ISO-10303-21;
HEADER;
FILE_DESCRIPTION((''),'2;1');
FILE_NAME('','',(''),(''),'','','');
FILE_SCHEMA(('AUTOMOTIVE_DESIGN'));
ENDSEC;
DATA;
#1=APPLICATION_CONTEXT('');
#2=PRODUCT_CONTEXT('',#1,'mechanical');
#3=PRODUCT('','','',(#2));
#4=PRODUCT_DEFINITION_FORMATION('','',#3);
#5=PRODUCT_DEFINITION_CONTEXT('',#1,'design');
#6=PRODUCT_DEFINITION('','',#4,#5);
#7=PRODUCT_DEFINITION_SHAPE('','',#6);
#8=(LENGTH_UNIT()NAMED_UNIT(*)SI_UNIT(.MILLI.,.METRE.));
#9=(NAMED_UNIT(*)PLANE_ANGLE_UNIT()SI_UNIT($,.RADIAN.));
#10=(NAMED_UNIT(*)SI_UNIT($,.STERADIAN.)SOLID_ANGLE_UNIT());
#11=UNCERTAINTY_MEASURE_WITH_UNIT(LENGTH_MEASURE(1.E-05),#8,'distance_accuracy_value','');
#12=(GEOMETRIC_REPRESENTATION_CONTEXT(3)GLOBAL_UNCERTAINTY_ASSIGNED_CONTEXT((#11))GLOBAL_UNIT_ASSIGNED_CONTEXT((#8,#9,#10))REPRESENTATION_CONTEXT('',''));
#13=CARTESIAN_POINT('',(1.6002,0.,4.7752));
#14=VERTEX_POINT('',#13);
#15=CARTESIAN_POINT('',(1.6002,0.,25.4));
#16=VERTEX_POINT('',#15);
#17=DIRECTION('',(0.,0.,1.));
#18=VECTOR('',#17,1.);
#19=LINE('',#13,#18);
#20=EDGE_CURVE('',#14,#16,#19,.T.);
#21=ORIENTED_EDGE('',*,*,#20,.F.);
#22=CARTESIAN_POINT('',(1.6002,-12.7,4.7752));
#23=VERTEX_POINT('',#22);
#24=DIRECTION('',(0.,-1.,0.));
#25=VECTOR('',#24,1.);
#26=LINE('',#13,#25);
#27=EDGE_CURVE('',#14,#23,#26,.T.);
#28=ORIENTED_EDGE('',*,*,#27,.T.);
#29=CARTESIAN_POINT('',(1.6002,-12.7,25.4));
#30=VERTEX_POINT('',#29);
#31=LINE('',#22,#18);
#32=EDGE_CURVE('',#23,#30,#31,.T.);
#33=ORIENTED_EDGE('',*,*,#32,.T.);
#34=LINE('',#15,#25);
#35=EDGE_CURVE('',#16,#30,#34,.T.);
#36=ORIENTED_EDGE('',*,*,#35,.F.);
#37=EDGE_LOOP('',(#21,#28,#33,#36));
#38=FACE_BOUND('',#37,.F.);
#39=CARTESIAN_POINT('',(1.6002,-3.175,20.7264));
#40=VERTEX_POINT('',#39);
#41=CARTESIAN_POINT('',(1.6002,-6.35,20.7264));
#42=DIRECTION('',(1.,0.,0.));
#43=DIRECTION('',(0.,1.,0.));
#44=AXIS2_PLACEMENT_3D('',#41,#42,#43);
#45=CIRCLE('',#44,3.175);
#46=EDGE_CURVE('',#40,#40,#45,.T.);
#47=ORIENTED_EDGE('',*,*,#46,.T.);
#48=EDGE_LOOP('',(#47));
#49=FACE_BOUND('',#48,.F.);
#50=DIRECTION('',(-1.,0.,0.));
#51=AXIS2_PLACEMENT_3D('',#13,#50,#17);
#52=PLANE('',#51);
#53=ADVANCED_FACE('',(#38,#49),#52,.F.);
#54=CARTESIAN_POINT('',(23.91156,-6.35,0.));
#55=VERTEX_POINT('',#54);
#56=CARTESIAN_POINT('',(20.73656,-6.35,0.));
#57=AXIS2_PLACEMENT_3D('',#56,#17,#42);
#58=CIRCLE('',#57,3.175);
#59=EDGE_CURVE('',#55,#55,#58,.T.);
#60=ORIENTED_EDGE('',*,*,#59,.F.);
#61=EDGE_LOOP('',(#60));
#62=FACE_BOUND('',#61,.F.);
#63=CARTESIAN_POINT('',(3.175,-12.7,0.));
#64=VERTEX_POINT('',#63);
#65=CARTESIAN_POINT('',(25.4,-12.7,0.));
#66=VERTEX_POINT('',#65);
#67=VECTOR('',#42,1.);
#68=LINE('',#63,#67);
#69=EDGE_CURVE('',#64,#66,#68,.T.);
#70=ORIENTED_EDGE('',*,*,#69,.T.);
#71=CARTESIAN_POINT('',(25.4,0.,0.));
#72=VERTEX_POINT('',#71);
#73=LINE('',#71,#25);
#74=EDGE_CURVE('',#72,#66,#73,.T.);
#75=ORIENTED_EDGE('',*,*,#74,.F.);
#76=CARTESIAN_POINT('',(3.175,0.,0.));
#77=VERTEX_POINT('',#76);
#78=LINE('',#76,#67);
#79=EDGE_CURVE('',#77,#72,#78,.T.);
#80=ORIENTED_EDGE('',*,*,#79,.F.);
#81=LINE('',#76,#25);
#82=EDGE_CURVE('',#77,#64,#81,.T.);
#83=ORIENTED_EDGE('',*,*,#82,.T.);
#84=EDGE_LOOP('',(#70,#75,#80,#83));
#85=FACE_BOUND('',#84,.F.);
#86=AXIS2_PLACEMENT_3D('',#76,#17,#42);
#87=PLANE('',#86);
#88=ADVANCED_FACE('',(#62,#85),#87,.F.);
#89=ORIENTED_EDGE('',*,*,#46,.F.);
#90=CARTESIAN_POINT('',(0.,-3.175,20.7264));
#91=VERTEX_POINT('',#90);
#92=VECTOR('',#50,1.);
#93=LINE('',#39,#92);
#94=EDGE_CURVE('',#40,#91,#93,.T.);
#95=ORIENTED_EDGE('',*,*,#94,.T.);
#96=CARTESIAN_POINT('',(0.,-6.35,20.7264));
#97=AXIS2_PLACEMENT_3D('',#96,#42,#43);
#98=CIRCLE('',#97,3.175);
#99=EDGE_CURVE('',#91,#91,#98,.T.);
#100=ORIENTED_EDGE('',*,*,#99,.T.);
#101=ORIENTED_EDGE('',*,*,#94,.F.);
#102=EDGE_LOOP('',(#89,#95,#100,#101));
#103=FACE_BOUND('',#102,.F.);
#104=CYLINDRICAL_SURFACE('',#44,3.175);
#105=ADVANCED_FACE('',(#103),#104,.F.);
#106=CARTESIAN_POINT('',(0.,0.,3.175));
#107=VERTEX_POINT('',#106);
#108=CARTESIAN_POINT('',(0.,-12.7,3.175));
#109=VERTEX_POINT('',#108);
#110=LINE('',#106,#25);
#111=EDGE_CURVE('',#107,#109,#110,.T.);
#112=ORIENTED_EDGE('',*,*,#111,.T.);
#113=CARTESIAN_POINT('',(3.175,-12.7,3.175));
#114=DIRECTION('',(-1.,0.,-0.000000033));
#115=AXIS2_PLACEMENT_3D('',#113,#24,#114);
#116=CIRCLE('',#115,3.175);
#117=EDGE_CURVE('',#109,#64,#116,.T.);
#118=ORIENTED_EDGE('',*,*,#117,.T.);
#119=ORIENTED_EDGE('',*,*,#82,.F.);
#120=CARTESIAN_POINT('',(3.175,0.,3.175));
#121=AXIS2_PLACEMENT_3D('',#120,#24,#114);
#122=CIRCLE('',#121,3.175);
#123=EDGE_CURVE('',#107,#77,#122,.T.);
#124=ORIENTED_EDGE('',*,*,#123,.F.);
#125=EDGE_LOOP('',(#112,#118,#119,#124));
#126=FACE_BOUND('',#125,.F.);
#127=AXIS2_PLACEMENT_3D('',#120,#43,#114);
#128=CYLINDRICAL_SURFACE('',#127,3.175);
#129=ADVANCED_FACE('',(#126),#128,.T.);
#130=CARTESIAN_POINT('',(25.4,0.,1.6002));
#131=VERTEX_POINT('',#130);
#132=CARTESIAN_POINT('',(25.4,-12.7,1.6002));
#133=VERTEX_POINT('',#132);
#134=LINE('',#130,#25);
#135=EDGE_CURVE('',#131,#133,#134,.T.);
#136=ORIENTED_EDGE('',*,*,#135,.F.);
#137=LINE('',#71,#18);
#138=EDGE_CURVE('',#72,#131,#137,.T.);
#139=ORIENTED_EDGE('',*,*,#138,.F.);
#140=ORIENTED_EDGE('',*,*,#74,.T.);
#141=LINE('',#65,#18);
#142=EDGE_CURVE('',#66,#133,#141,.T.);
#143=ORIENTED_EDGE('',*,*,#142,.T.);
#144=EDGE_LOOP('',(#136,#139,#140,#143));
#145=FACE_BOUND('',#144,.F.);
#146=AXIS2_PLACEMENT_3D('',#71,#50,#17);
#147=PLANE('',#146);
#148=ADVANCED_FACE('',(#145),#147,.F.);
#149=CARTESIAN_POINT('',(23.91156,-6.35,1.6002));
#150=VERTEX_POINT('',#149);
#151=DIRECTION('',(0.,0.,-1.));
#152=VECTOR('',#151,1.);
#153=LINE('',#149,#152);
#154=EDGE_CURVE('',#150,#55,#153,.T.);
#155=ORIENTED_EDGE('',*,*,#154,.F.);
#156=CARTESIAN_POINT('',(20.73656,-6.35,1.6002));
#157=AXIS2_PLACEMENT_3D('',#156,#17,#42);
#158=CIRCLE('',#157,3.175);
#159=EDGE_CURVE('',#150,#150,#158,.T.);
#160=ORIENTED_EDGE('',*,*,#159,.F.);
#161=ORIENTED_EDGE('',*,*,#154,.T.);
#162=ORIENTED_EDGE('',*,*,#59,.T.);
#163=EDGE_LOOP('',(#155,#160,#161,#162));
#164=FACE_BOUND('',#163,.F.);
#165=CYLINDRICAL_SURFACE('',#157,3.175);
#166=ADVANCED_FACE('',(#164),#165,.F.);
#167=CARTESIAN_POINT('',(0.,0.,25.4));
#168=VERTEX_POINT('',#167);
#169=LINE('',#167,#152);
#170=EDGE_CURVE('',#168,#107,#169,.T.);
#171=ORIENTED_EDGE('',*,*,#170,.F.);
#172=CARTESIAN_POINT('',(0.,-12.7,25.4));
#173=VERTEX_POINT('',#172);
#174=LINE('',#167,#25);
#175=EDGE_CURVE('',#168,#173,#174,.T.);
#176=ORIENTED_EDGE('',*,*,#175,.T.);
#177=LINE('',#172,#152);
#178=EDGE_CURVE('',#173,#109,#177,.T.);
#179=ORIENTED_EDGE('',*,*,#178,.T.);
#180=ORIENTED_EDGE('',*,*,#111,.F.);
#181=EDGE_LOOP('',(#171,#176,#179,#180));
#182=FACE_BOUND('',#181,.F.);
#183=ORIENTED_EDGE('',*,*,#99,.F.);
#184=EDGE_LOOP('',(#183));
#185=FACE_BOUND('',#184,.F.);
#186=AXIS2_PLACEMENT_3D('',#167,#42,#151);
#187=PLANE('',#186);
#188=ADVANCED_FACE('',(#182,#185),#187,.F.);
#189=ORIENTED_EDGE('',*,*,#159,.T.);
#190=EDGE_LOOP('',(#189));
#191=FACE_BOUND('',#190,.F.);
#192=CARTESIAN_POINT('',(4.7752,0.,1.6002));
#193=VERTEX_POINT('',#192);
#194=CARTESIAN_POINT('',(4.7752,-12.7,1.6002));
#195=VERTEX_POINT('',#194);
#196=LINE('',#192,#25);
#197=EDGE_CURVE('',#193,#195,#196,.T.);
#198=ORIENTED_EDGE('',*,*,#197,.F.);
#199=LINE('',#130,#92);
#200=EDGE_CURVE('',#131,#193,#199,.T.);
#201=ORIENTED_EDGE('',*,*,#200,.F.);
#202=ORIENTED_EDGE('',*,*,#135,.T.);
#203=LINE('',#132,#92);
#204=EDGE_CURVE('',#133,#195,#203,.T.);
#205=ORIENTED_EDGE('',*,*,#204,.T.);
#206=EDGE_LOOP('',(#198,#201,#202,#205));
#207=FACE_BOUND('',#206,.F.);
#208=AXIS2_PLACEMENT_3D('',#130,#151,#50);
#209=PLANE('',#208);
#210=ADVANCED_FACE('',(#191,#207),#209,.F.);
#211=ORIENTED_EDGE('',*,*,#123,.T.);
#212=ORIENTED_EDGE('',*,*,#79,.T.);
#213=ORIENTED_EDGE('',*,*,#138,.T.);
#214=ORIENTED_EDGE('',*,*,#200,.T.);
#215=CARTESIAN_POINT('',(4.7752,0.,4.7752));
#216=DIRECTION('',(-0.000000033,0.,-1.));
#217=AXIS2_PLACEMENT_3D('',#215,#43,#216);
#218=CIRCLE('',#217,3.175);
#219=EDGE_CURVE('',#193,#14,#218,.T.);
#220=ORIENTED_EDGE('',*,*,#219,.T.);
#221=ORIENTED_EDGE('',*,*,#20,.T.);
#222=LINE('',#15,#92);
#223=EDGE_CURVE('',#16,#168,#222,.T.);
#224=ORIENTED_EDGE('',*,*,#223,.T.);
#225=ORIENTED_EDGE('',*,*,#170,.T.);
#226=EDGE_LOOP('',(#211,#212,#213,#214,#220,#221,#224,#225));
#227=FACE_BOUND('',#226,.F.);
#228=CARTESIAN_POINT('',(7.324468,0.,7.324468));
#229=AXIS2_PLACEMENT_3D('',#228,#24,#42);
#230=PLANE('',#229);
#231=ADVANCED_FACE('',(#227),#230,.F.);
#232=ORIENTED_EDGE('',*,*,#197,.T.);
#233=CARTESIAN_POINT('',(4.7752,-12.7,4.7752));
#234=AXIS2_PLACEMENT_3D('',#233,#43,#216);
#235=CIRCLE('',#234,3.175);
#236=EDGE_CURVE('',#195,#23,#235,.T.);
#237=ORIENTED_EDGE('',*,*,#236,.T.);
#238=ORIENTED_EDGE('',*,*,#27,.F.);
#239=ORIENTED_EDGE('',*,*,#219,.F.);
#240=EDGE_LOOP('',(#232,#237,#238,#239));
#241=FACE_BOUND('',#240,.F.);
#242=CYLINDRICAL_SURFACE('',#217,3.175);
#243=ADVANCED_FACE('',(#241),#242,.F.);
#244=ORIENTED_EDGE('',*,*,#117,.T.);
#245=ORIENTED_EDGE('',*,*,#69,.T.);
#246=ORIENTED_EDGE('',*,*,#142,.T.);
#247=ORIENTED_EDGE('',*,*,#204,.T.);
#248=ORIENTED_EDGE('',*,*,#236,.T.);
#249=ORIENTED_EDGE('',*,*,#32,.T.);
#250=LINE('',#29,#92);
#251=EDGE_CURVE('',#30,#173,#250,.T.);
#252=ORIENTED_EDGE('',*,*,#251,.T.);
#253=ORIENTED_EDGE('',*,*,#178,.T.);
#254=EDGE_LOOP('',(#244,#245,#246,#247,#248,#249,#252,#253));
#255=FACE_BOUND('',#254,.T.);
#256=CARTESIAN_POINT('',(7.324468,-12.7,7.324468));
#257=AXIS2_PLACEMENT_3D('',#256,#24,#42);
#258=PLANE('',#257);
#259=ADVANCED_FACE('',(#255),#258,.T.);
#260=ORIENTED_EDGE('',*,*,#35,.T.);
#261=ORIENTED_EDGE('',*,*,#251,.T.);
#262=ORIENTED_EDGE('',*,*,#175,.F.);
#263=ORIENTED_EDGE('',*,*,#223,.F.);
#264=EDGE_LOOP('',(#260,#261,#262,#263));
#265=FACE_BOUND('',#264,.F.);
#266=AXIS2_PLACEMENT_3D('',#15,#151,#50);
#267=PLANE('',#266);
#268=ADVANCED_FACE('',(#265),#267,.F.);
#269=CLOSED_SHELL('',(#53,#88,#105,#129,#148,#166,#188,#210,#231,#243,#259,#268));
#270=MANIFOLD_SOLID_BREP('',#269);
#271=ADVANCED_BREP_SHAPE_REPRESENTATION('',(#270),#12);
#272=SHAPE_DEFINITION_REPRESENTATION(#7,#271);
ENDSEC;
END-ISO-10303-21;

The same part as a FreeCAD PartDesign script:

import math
import FreeCAD as App
import Part
import Sketcher
from FreeCAD import Vector
Q = App.Units.Quantity

doc = App.newDocument("Part")
params = doc.addObject("Spreadsheet::Sheet", "Params")
for row, (alias, value) in enumerate([
    ("sketch1_radius", "0.125 in"),
    ("sketch1_width", "0.812 in"),
    ("pad1_length", "0.5 in"),
    ("sketch2_diameter", "0.25 in"),
    ("pocket1_length", "1 in"),
    ("sketch3_diameter", "0.25 in"),
    ("pocket2_length", "1 in"),
], start=1):
    params.set(f"A{row}", alias)
    params.set(f"B{row}", "=" + value)
    params.setAlias(f"B{row}", alias)

body = doc.addObject("PartDesign::Body", "Body")

# Sketch on XZ plane
sketch1 = doc.addObject("Sketcher::SketchObject", "Sketch")
body.addObject(sketch1)
sketch1.AttachmentSupport = (doc.XZ_Plane, [""])
sketch1.MapMode = "FlatFace"
sketch1.addGeometry([
    Part.LineSegment(Vector(0, 25.4, 0), Vector(0, 3.2, 0)),  # 0
    Part.ArcOfCircle(Part.Circle(Vector(3.2, 3.2, 0), Vector(0, 0, 1), 3.2), math.radians(-180), math.radians(-90)),  # 1
    Part.LineSegment(Vector(3.2, 0, 0), Vector(25.4, 0, 0)),  # 2
    Part.LineSegment(Vector(25.4, 0, 0), Vector(25.4, 1.6, 0)),  # 3
    Part.LineSegment(Vector(25.4, 1.6, 0), Vector(4.8, 1.6, 0)),  # 4
    Part.ArcOfCircle(Part.Circle(Vector(4.8, 4.8, 0), Vector(0, 0, 1), 3.2), math.radians(-180), math.radians(-90)),  # 5
    Part.LineSegment(Vector(1.6, 4.8, 0), Vector(1.6, 25.4, 0)),  # 6
    Part.LineSegment(Vector(1.6, 25.4, 0), Vector(0, 25.4, 0)),  # 7
], False)
sketch1.addConstraint([
    Sketcher.Constraint("Tangent", 0, 2, 1, 1),
    Sketcher.Constraint("Tangent", 1, 2, 2, 1),
    Sketcher.Constraint("Coincident", 2, 2, 3, 1),
    Sketcher.Constraint("Coincident", 3, 2, 4, 1),
    Sketcher.Constraint("Tangent", 4, 2, 5, 2),
    Sketcher.Constraint("Tangent", 5, 1, 6, 1),
    Sketcher.Constraint("Coincident", 6, 2, 7, 1),
    Sketcher.Constraint("Coincident", 7, 2, 0, 1),
    Sketcher.Constraint("Vertical", 0),
    Sketcher.Constraint("Horizontal", 2),
    Sketcher.Constraint("Vertical", 3),
    Sketcher.Constraint("Horizontal", 4),
    Sketcher.Constraint("Vertical", 6),
    Sketcher.Constraint("Horizontal", 7),
    Sketcher.Constraint("Equal", 1, 5),
    Sketcher.Constraint("PointOnObject", 0, 2, -2),
    Sketcher.Constraint("PointOnObject", 1, 2, -1),
    Sketcher.Constraint("Equal", 2, 0),
    Sketcher.Constraint("Equal", 7, 3),
    Sketcher.Constraint("DistanceX", -1, 1, 2, 2, Q("1 in")),
    Sketcher.Constraint("Radius", 1, Q("0.125 in")),
    Sketcher.Constraint("DistanceX", 4, 2, 4, 1, Q("0.812 in")),
])
sketch1.setExpression("Constraints[20]", "Params.sketch1_radius")
sketch1.setExpression("Constraints[21]", "Params.sketch1_width")
pad1 = doc.addObject("PartDesign::Pad", "Pad")
body.addObject(pad1)
pad1.Profile = sketch1
pad1.setExpression("Length", "Params.pad1_length")

# Sketch on XY plane
sketch2 = doc.addObject("Sketcher::SketchObject", "Sketch001")
body.addObject(sketch2)
sketch2.AttachmentSupport = (doc.XY_Plane, [""])
sketch2.MapMode = "FlatFace"
sketch2.AttachmentOffset = App.Placement(Vector(0, 0, 0.063 * 25.4), App.Rotation())
sketch2.addGeometry(Part.Circle(Vector(20.7, -6.3, 0), Vector(0, 0, 1), 3.2), False)
sketch2.addConstraint([
    Sketcher.Constraint("Diameter", 0, Q("0.25 in")),
    Sketcher.Constraint("DistanceY", 0, 3, -1, 1, Q("0.25 in")),
    Sketcher.Constraint("DistanceX", -1, 1, 0, 3, Q("0.8164 in")),
])
sketch2.setExpression("Constraints[0]", "Params.sketch2_diameter")
pocket1 = doc.addObject("PartDesign::Pocket", "Pocket")
body.addObject(pocket1)
pocket1.Profile = sketch2
pocket1.setExpression("Length", "Params.pocket1_length")

# Sketch on YZ plane
sketch3 = doc.addObject("Sketcher::SketchObject", "Sketch002")
body.addObject(sketch3)
sketch3.AttachmentSupport = (doc.YZ_Plane, [""])
sketch3.MapMode = "FlatFace"
sketch3.AttachmentOffset = App.Placement(Vector(0, 0, 0.063 * 25.4), App.Rotation())
sketch3.addGeometry(Part.Circle(Vector(-6.3, 20.7, 0), Vector(0, 0, 1), 3.2), False)
sketch3.addConstraint([
    Sketcher.Constraint("Diameter", 0, Q("0.25 in")),
    Sketcher.Constraint("DistanceX", 0, 3, -1, 1, Q("0.25 in")),
    Sketcher.Constraint("DistanceY", -1, 1, 0, 3, Q("0.816 in")),
])
sketch3.setExpression("Constraints[0]", "Params.sketch3_diameter")
pocket2 = doc.addObject("PartDesign::Pocket", "Pocket001")
body.addObject(pocket2)
pocket2.Profile = sketch3
pocket2.setExpression("Length", "Params.pocket2_length")

doc.recompute()
